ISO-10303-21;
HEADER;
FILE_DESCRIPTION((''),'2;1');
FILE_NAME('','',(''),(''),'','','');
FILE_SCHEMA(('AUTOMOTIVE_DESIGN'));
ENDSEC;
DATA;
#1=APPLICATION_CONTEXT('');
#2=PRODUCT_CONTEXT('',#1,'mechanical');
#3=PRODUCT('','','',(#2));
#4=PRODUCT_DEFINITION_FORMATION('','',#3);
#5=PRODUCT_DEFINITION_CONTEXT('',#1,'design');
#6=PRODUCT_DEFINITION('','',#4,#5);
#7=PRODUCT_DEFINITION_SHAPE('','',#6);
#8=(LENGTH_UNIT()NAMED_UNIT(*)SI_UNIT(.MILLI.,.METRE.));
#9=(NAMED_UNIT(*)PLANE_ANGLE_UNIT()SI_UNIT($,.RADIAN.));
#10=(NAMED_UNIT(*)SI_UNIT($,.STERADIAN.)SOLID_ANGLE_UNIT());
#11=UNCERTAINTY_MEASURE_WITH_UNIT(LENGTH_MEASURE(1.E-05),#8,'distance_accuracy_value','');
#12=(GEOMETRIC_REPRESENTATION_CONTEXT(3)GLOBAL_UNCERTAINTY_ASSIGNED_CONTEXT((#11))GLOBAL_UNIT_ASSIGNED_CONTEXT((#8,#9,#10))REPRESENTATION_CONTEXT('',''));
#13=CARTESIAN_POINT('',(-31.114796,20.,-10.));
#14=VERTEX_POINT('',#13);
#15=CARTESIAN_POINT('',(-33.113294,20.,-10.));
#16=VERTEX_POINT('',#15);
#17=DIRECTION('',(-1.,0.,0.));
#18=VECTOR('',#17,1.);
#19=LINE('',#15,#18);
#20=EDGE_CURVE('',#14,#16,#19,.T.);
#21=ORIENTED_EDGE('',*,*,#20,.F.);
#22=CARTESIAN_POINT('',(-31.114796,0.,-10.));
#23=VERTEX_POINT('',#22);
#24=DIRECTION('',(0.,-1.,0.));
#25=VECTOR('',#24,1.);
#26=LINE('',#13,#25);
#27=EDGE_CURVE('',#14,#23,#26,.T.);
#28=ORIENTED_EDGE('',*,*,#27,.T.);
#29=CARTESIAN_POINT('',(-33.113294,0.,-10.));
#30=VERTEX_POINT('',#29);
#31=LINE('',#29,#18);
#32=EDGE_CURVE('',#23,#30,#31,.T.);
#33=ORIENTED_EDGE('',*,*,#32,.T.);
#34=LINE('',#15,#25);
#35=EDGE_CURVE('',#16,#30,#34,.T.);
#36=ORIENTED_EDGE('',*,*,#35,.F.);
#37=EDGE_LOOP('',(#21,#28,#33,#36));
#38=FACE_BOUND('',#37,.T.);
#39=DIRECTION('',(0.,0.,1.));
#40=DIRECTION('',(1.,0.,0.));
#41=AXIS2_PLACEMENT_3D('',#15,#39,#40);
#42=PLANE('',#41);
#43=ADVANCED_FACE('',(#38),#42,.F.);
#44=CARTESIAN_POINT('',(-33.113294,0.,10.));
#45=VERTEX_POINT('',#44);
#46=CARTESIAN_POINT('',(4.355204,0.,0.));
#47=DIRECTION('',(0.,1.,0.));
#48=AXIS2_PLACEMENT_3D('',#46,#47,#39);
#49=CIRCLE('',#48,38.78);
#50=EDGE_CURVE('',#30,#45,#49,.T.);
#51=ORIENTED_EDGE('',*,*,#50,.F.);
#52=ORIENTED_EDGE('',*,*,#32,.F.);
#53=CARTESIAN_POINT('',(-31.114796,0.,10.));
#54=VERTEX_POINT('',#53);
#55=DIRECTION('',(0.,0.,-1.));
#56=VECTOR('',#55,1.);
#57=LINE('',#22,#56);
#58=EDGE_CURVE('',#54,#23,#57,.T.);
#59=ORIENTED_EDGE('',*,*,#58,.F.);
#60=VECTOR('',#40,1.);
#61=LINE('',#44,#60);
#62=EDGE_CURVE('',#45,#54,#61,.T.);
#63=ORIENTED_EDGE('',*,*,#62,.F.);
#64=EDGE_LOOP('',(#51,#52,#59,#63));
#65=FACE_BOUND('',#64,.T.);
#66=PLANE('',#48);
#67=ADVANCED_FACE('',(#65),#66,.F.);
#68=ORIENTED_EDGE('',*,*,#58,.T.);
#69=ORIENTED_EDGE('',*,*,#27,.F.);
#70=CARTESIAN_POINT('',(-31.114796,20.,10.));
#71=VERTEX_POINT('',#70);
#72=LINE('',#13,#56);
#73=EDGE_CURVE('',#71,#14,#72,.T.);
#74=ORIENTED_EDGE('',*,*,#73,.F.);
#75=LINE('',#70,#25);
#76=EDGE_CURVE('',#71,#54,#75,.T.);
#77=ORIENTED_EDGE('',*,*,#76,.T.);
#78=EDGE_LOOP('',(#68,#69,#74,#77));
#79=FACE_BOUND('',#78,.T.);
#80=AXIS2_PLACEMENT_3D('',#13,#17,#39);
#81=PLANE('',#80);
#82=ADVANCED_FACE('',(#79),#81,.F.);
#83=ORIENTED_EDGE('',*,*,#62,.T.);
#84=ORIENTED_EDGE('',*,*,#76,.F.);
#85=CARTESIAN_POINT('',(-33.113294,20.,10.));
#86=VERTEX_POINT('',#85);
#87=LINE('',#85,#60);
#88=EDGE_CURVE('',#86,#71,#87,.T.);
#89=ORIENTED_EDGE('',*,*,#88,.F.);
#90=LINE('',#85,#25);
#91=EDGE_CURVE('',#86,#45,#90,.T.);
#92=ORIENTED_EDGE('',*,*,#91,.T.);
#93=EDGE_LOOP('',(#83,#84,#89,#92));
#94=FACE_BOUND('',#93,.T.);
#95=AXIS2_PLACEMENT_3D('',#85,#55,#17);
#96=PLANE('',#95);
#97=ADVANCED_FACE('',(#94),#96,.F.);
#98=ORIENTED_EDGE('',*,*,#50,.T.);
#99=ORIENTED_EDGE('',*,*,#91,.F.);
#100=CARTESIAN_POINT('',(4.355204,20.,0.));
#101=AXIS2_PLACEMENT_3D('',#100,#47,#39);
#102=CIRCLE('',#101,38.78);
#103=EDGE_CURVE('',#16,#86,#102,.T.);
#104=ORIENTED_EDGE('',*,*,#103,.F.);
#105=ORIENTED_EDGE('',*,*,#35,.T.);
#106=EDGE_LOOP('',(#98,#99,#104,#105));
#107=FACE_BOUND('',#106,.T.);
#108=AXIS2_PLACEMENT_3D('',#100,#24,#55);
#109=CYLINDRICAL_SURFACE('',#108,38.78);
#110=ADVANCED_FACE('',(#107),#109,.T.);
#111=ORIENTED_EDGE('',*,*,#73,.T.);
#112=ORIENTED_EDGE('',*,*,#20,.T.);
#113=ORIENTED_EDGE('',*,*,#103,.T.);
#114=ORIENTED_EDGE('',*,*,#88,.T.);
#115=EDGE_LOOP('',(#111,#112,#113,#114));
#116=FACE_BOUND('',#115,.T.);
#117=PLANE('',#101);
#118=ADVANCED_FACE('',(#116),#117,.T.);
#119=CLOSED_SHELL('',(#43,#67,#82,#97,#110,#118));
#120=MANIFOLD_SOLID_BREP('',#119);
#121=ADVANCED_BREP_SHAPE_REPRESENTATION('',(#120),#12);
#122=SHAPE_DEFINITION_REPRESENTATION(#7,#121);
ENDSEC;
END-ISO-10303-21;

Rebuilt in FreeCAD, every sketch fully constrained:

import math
import FreeCAD as App
import Part
import Sketcher
from FreeCAD import Vector
Q = App.Units.Quantity

doc = App.newDocument("Part")
body = doc.addObject("PartDesign::Body", "Body")

# Sketch on XZ plane
sketch1 = body.newObject("Sketcher::SketchObject", "Sketch")
sketch1.AttachmentSupport = (doc.getObject("XZ_Plane"), [""])
sketch1.MapMode = "FlatFace"
sketch1.addGeometry([
    Part.LineSegment(Vector(-31.1, -10, 0), Vector(-33.1, -10, 0)),
    Part.ArcOfCircle(Part.Circle(Vector(4.4, 0, 0), Vector(0, 0, 1), 38.8), math.radians(165), math.radians(195)),
    Part.LineSegment(Vector(-33.1, 10, 0), Vector(-31.1, 10, 0)),
    Part.LineSegment(Vector(-31.1, 10, 0), Vector(-31.1, -10, 0)),
], False)
sketch1.addConstraint([
    Sketcher.Constraint("Coincident", 0, 2, 1, 2),
    Sketcher.Constraint("Coincident", 1, 1, 2, 1),
    Sketcher.Constraint("Coincident", 2, 2, 3, 1),
    Sketcher.Constraint("Coincident", 3, 2, 0, 1),
    Sketcher.Constraint("Horizontal", 0),
    Sketcher.Constraint("Horizontal", 2),
    Sketcher.Constraint("Vertical", 3),
    Sketcher.Constraint("Symmetric", 0, 2, 1, 1, -1),
    Sketcher.Constraint("DistanceY", 3, 2, 3, 1, Q("20 mm")),
    Sketcher.Constraint("Radius", 1, Q("38.78 mm")),
    Sketcher.Constraint("DistanceX", 2, 2, 1, 3, Q("35.47 mm")),
    Sketcher.Constraint("DistanceX", -1, 1, 1, 3, Q("4.355204 mm")),
])
pad1 = body.newObject("PartDesign::Pad", "Pad")
pad1.Profile = sketch1
pad1.Length = 20
pad1.Reversed = True

doc.recompute()
